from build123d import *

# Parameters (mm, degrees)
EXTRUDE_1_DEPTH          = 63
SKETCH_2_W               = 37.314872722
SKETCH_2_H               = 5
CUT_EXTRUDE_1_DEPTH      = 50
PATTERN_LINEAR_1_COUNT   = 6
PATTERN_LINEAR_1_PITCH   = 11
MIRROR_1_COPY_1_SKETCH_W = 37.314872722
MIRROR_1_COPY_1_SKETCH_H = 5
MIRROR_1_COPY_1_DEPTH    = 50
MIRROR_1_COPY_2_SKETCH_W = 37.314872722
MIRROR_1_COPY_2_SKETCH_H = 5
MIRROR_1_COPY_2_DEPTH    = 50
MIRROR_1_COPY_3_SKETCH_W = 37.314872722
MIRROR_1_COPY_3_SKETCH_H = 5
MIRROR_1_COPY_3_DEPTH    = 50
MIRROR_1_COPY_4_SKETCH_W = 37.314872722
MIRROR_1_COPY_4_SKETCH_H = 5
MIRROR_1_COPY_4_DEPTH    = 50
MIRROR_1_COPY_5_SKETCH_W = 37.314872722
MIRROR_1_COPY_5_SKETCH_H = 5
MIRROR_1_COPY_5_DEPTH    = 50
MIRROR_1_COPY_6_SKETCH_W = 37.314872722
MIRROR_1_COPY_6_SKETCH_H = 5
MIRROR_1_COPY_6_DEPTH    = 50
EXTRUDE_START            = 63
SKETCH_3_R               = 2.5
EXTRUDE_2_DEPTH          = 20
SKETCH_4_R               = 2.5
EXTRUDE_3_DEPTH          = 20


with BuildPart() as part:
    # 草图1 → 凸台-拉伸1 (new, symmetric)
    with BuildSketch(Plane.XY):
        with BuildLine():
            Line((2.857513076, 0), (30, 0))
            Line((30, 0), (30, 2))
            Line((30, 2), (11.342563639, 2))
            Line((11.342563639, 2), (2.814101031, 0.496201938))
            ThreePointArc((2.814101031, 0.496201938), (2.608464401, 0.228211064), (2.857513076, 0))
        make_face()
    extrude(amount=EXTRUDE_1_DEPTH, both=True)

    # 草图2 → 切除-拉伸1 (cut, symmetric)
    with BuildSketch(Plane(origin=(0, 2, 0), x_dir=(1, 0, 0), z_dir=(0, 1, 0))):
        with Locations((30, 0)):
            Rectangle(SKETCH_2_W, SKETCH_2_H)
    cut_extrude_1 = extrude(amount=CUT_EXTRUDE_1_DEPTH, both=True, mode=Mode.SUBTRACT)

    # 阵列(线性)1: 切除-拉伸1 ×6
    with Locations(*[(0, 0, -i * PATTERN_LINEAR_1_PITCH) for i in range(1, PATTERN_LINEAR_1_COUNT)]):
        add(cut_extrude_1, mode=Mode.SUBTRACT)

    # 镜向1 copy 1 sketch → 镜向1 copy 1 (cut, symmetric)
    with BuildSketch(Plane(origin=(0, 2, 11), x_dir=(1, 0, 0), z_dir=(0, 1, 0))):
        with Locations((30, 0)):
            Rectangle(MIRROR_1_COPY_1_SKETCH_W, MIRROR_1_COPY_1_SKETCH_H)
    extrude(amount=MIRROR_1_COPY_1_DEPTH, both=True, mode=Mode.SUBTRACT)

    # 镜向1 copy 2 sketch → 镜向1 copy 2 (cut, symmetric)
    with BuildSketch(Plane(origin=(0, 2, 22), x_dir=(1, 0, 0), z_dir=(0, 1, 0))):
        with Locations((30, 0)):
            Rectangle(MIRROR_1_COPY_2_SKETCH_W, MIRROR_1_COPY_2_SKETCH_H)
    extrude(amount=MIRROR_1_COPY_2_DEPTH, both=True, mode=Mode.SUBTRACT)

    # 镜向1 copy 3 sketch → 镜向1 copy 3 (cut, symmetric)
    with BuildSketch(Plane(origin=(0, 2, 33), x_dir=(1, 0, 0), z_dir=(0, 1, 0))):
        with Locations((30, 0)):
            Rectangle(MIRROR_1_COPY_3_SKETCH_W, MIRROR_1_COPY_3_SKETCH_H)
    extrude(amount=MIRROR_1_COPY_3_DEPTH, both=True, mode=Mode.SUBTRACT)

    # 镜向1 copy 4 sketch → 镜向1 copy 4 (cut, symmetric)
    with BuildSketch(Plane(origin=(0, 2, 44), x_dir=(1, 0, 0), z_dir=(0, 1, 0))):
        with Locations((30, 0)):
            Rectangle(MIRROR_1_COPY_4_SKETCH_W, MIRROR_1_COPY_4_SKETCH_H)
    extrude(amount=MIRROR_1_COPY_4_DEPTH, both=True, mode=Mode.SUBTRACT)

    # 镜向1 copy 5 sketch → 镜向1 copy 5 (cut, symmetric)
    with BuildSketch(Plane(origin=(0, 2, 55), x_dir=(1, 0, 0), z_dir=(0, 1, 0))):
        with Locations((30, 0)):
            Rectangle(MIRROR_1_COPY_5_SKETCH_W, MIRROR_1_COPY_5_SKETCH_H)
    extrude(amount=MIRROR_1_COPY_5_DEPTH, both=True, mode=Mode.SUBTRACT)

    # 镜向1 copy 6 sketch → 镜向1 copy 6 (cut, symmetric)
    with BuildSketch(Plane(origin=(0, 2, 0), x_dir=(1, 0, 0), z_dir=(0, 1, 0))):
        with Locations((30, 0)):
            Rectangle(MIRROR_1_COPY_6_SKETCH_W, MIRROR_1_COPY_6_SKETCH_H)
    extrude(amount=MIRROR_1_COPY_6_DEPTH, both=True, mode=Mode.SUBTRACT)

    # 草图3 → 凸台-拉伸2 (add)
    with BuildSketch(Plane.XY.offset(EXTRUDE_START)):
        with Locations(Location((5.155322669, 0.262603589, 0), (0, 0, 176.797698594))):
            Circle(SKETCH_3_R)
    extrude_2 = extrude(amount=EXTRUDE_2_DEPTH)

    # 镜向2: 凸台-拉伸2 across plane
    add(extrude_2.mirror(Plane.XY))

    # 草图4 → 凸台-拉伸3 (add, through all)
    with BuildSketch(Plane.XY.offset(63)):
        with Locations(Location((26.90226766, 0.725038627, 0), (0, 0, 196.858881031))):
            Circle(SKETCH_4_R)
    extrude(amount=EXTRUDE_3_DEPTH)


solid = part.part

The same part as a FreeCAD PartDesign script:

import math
import FreeCAD as App
import Part
import Sketcher
Q = App.Units.Quantity

doc = App.newDocument("Part")
body = doc.addObject("PartDesign::Body", "Body")

# Sketch on XY plane
sketch1 = body.newObject("Sketcher::SketchObject", "Sketch")
sketch1.AttachmentSupport = (doc.getObject("XY_Plane"), [""])
sketch1.MapMode = "FlatFace"
sketch1.addGeometry([
    Part.LineSegment(App.Vector(2.86, 0, 0), App.Vector(30, 0, 0)),  # 0
    Part.LineSegment(App.Vector(30, 0, 0), App.Vector(30, 2, 0)),  # 1
    Part.LineSegment(App.Vector(30, 2, 0), App.Vector(11.34, 2, 0)),  # 2
    Part.LineSegment(App.Vector(11.34, 2, 0), App.Vector(2.81, 0.5, 0)),  # 3
    Part.ArcOfCircle(Part.Circle(App.Vector(2.86, 0.25, 0), App.Vector(0, 0, 1), 0.25), math.radians(100), math.radians(270)),  # 4
], False)
sketch1.addConstraint([
    Sketcher.Constraint("Coincident", 0, 2, 1, 1),
    Sketcher.Constraint("Coincident", 1, 2, 2, 1),
    Sketcher.Constraint("Coincident", 2, 2, 3, 1),
    Sketcher.Constraint("Tangent", 3, 2, 4, 1),
    Sketcher.Constraint("Tangent", 4, 2, 0, 1),
    Sketcher.Constraint("Horizontal", 0),
    Sketcher.Constraint("Vertical", 1),
    Sketcher.Constraint("Horizontal", 2),
    Sketcher.Constraint("PointOnObject", 0, 2, -1),
    Sketcher.Constraint("DistanceY", 1, 1, 1, 2, 2.0),
    Sketcher.Constraint("Angle", 3, Q("-170 deg")),
    Sketcher.Constraint("Radius", 4, 0.25),
    Sketcher.Constraint("DistanceX", -1, 1, 0, 2, 30.0),
    Sketcher.Constraint("DistanceX", -1, 1, 3, 2, 2.814101),
])
pad1 = body.newObject("PartDesign::Pad", "Pad")
pad1.Profile = sketch1
pad1.Length = 126
pad1.Midplane = True

# Sketch on XZ plane
sketch2 = body.newObject("Sketcher::SketchObject", "Sketch001")
sketch2.AttachmentSupport = (doc.getObject("XZ_Plane"), [""])
sketch2.MapMode = "FlatFace"
sketch2.AttachmentOffset = App.Placement(App.Vector(0, 0, -2), App.Rotation())
sketch2.addGeometry([
    Part.LineSegment(App.Vector(11, -2, 0), App.Vector(11, 2, 0)),
    Part.LineSegment(App.Vector(11, 2, 0), App.Vector(49, 2, 0)),
    Part.LineSegment(App.Vector(49, 2, 0), App.Vector(49, -2, 0)),
    Part.LineSegment(App.Vector(49, -2, 0), App.Vector(11, -2, 0)),
], False)
sketch2.addConstraint([
    Sketcher.Constraint("Coincident", 0, 2, 1, 1),
    Sketcher.Constraint("Coincident", 1, 2, 2, 1),
    Sketcher.Constraint("Coincident", 2, 2, 3, 1),
    Sketcher.Constraint("Coincident", 3, 2, 0, 1),
    Sketcher.Constraint("Vertical", 0),
    Sketcher.Constraint("Horizontal", 1),
    Sketcher.Constraint("Vertical", 2),
    Sketcher.Constraint("Horizontal", 3),
    Sketcher.Constraint("DistanceY", 0, 1, 0, 2, 5.0),
    Sketcher.Constraint("DistanceY", -1, 1, 0, 2, 2.5),
    Sketcher.Constraint("DistanceX", 1, 1, 1, 2, 37.314873),
    Sketcher.Constraint("DistanceX", -1, 1, 0, 2, 11.342564),
])
pocket1 = body.newObject("PartDesign::Pocket", "Pocket")
pocket1.Profile = sketch2
pocket1.Length = 100
pocket1.Midplane = True
doc.recompute()

linearpattern = body.newObject("PartDesign::LinearPattern", "LinearPattern")
linearpattern.Originals = [pocket1]
linearpattern.Direction = (doc.getObject("Z_Axis"), [""])
linearpattern.Mode = "offset"
linearpattern.Offset = 11
linearpattern.Occurrences = 6
linearpattern.Reversed = True
body.Tip = linearpattern

# Sketch on XZ plane
sketch3 = body.newObject("Sketcher::SketchObject", "Sketch002")
sketch3.AttachmentSupport = (doc.getObject("XZ_Plane"), [""])
sketch3.MapMode = "FlatFace"
sketch3.AttachmentOffset = App.Placement(App.Vector(0, 0, -2), App.Rotation())
sketch3.addGeometry([
    Part.LineSegment(App.Vector(11, 8, 0), App.Vector(11, 14, 0)),
    Part.LineSegment(App.Vector(11, 14, 0), App.Vector(49, 14, 0)),
    Part.LineSegment(App.Vector(49, 14, 0), App.Vector(49, 8, 0)),
    Part.LineSegment(App.Vector(49, 8, 0), App.Vector(11, 8, 0)),
], False)
sketch3.addConstraint([
    Sketcher.Constraint("Coincident", 0, 2, 1, 1),
    Sketcher.Constraint("Coincident", 1, 2, 2, 1),
    Sketcher.Constraint("Coincident", 2, 2, 3, 1),
    Sketcher.Constraint("Coincident", 3, 2, 0, 1),
    Sketcher.Constraint("Vertical", 0),
    Sketcher.Constraint("Horizontal", 1),
    Sketcher.Constraint("Vertical", 2),
    Sketcher.Constraint("Horizontal", 3),
    Sketcher.Constraint("DistanceY", 0, 1, 0, 2, 5.0),
    Sketcher.Constraint("DistanceY", -1, 1, 0, 2, 13.5),
    Sketcher.Constraint("DistanceX", 1, 1, 1, 2, 37.314873),
    Sketcher.Constraint("DistanceX", -1, 1, 0, 2, 11.342564),
])
pocket2 = body.newObject("PartDesign::Pocket", "Pocket001")
pocket2.Profile = sketch3
pocket2.Length = 100
pocket2.Midplane = True

# Sketch on XZ plane
sketch4 = body.newObject("Sketcher::SketchObject", "Sketch003")
sketch4.AttachmentSupport = (doc.getObject("XZ_Plane"), [""])
sketch4.MapMode = "FlatFace"
sketch4.AttachmentOffset = App.Placement(App.Vector(0, 0, -2), App.Rotation())
sketch4.addGeometry([
    Part.LineSegment(App.Vector(11, 20, 0), App.Vector(11, 24, 0)),
    Part.LineSegment(App.Vector(11, 24, 0), App.Vector(49, 24, 0)),
    Part.LineSegment(App.Vector(49, 24, 0), App.Vector(49, 20, 0)),
    Part.LineSegment(App.Vector(49, 20, 0), App.Vector(11, 20, 0)),
], False)
sketch4.addConstraint([
    Sketcher.Constraint("Coincident", 0, 2, 1, 1),
    Sketcher.Constraint("Coincident", 1, 2, 2, 1),
    Sketcher.Constraint("Coincident", 2, 2, 3, 1),
    Sketcher.Constraint("Coincident", 3, 2, 0, 1),
    Sketcher.Constraint("Vertical", 0),
    Sketcher.Constraint("Horizontal", 1),
    Sketcher.Constraint("Vertical", 2),
    Sketcher.Constraint("Horizontal", 3),
    Sketcher.Constraint("DistanceY", 0, 1, 0, 2, 5.0),
    Sketcher.Constraint("DistanceY", -1, 1, 0, 2, 24.5),
    Sketcher.Constraint("DistanceX", 1, 1, 1, 2, 37.314873),
    Sketcher.Constraint("DistanceX", -1, 1, 0, 2, 11.342564),
])
pocket3 = body.newObject("PartDesign::Pocket", "Pocket002")
pocket3.Profile = sketch4
pocket3.Length = 100
pocket3.Midplane = True

# Sketch on XZ plane
sketch5 = body.newObject("Sketcher::SketchObject", "Sketch004")
sketch5.AttachmentSupport = (doc.getObject("XZ_Plane"), [""])
sketch5.MapMode = "FlatFace"
sketch5.AttachmentOffset = App.Placement(App.Vector(0, 0, -2), App.Rotation())
sketch5.addGeometry([
    Part.LineSegment(App.Vector(11, 30, 0), App.Vector(11, 36, 0)),
    Part.LineSegment(App.Vector(11, 36, 0), App.Vector(49, 36, 0)),
    Part.LineSegment(App.Vector(49, 36, 0), App.Vector(49, 30, 0)),
    Part.LineSegment(App.Vector(49, 30, 0), App.Vector(11, 30, 0)),
], False)
sketch5.addConstraint([
    Sketcher.Constraint("Coincident", 0, 2, 1, 1),
    Sketcher.Constraint("Coincident", 1, 2, 2, 1),
    Sketcher.Constraint("Coincident", 2, 2, 3, 1),
    Sketcher.Constraint("Coincident", 3, 2, 0, 1),
    Sketcher.Constraint("Vertical", 0),
    Sketcher.Constraint("Horizontal", 1),
    Sketcher.Constraint("Vertical", 2),
    Sketcher.Constraint("Horizontal", 3),
    Sketcher.Constraint("DistanceY", 0, 1, 0, 2, 5.0),
    Sketcher.Constraint("DistanceY", -1, 1, 0, 2, 35.5),
    Sketcher.Constraint("DistanceX", 1, 1, 1, 2, 37.314873),
    Sketcher.Constraint("DistanceX", -1, 1, 0, 2, 11.342564),
])
pocket4 = body.newObject("PartDesign::Pocket", "Pocket003")
pocket4.Profile = sketch5
pocket4.Length = 100
pocket4.Midplane = True

# Sketch on XZ plane
sketch6 = body.newObject("Sketcher::SketchObject", "Sketch005")
sketch6.AttachmentSupport = (doc.getObject("XZ_Plane"), [""])
sketch6.MapMode = "FlatFace"
sketch6.AttachmentOffset = App.Placement(App.Vector(0, 0, -2), App.Rotation())
sketch6.addGeometry([
    Part.LineSegment(App.Vector(11, 42, 0), App.Vector(11, 46, 0)),
    Part.LineSegment(App.Vector(11, 46, 0), App.Vector(49, 46, 0)),
    Part.LineSegment(App.Vector(49, 46, 0), App.Vector(49, 42, 0)),
    Part.LineSegment(App.Vector(49, 42, 0), App.Vector(11, 42, 0)),
], False)
sketch6.addConstraint([
    Sketcher.Constraint("Coincident", 0, 2, 1, 1),
    Sketcher.Constraint("Coincident", 1, 2, 2, 1),
    Sketcher.Constraint("Coincident", 2, 2, 3, 1),
    Sketcher.Constraint("Coincident", 3, 2, 0, 1),
    Sketcher.Constraint("Vertical", 0),
    Sketcher.Constraint("Horizontal", 1),
    Sketcher.Constraint("Vertical", 2),
    Sketcher.Constraint("Horizontal", 3),
    Sketcher.Constraint("DistanceY", 0, 1, 0, 2, 5.0),
    Sketcher.Constraint("DistanceY", -1, 1, 0, 2, 46.5),
    Sketcher.Constraint("DistanceX", 1, 1, 1, 2, 37.314873),
    Sketcher.Constraint("DistanceX", -1, 1, 0, 2, 11.342564),
])
pocket5 = body.newObject("PartDesign::Pocket", "Pocket004")
pocket5.Profile = sketch6
pocket5.Length = 100
pocket5.Midplane = True

# Sketch on XZ plane
sketch7 = body.newObject("Sketcher::SketchObject", "Sketch006")
sketch7.AttachmentSupport = (doc.getObject("XZ_Plane"), [""])
sketch7.MapMode = "FlatFace"
sketch7.AttachmentOffset = App.Placement(App.Vector(0, 0, -2), App.Rotation())
sketch7.addGeometry([
    Part.LineSegment(App.Vector(11, 52, 0), App.Vector(11, 58, 0)),
    Part.LineSegment(App.Vector(11, 58, 0), App.Vector(49, 58, 0)),
    Part.LineSegment(App.Vector(49, 58, 0), App.Vector(49, 52, 0)),
    Part.LineSegment(App.Vector(49, 52, 0), App.Vector(11, 52, 0)),
], False)
sketch7.addConstraint([
    Sketcher.Constraint("Coincident", 0, 2, 1, 1),
    Sketcher.Constraint("Coincident", 1, 2, 2, 1),
    Sketcher.Constraint("Coincident", 2, 2, 3, 1),
    Sketcher.Constraint("Coincident", 3, 2, 0, 1),
    Sketcher.Constraint("Vertical", 0),
    Sketcher.Constraint("Horizontal", 1),
    Sketcher.Constraint("Vertical", 2),
    Sketcher.Constraint("Horizontal", 3),
    Sketcher.Constraint("DistanceY", 0, 1, 0, 2, 5.0),
    Sketcher.Constraint("DistanceY", -1, 1, 0, 2, 57.5),
    Sketcher.Constraint("DistanceX", 1, 1, 1, 2, 37.314873),
    Sketcher.Constraint("DistanceX", -1, 1, 0, 2, 11.342564),
])
pocket6 = body.newObject("PartDesign::Pocket", "Pocket005")
pocket6.Profile = sketch7
pocket6.Length = 100
pocket6.Midplane = True

# Sketch on XZ plane
sketch8 = body.newObject("Sketcher::SketchObject", "Sketch007")
sketch8.AttachmentSupport = (doc.getObject("XZ_Plane"), [""])
sketch8.MapMode = "FlatFace"
sketch8.AttachmentOffset = App.Placement(App.Vector(0, 0, -2), App.Rotation())
sketch8.addGeometry([
    Part.LineSegment(App.Vector(11, -2, 0), App.Vector(11, 2, 0)),
    Part.LineSegment(App.Vector(11, 2, 0), App.Vector(49, 2, 0)),
    Part.LineSegment(App.Vector(49, 2, 0), App.Vector(49, -2, 0)),
    Part.LineSegment(App.Vector(49, -2, 0), App.Vector(11, -2, 0)),
], False)
sketch8.addConstraint([
    Sketcher.Constraint("Coincident", 0, 2, 1, 1),
    Sketcher.Constraint("Coincident", 1, 2, 2, 1),
    Sketcher.Constraint("Coincident", 2, 2, 3, 1),
    Sketcher.Constraint("Coincident", 3, 2, 0, 1),
    Sketcher.Constraint("Vertical", 0),
    Sketcher.Constraint("Horizontal", 1),
    Sketcher.Constraint("Vertical", 2),
    Sketcher.Constraint("Horizontal", 3),
    Sketcher.Constraint("DistanceY", 0, 1, 0, 2, 5.0),
    Sketcher.Constraint("DistanceY", -1, 1, 0, 2, 2.5),
    Sketcher.Constraint("DistanceX", 1, 1, 1, 2, 37.314873),
    Sketcher.Constraint("DistanceX", -1, 1, 0, 2, 11.342564),
])
pocket7 = body.newObject("PartDesign::Pocket", "Pocket006")
pocket7.Profile = sketch8
pocket7.Length = 100
pocket7.Midplane = True

# Sketch on XY plane
sketch9 = body.newObject("Sketcher::SketchObject", "Sketch008")
sketch9.AttachmentSupport = (doc.getObject("XY_Plane"), [""])
sketch9.MapMode = "FlatFace"
sketch9.AttachmentOffset = App.Placement(App.Vector(0, 0, 63), App.Rotation())
sketch9.addGeometry(Part.Circle(App.Vector(5.2, 0.3, 0), App.Vector(0, 0, 1), 2.5), False)
sketch9.addConstraint([
    Sketcher.Constraint("Diameter", 0, 5.0),
    Sketcher.Constraint("DistanceX", -1, 1, 0, 3, 5.155323),
    Sketcher.Constraint("DistanceY", -1, 1, 0, 3, 0.262604),
])
pad2 = body.newObject("PartDesign::Pad", "Pad001")
pad2.Profile = sketch9
pad2.Length = 20
doc.recompute()

mirrored = body.newObject("PartDesign::Mirrored", "Mirrored")
mirrored.Originals = [pad2]
mirrored.MirrorPlane = (doc.getObject("XY_Plane"), [""])
body.Tip = mirrored

# Sketch on XY plane
sketch10 = body.newObject("Sketcher::SketchObject", "Sketch009")
sketch10.AttachmentSupport = (doc.getObject("XY_Plane"), [""])
sketch10.MapMode = "FlatFace"
sketch10.AttachmentOffset = App.Placement(App.Vector(0, 0, 63), App.Rotation())
sketch10.addGeometry(Part.Circle(App.Vector(26.9, 0.7, 0), App.Vector(0, 0, 1), 2.5), False)
sketch10.addConstraint([
    Sketcher.Constraint("Diameter", 0, 5.0),
    Sketcher.Constraint("DistanceY", -1, 1, 0, 3, 0.725039),
    Sketcher.Constraint("DistanceX", -1, 1, 0, 3, 26.902268),
])
pad3 = body.newObject("PartDesign::Pad", "Pad002")
pad3.Profile = sketch10
pad3.Length = 20

doc.recompute()
